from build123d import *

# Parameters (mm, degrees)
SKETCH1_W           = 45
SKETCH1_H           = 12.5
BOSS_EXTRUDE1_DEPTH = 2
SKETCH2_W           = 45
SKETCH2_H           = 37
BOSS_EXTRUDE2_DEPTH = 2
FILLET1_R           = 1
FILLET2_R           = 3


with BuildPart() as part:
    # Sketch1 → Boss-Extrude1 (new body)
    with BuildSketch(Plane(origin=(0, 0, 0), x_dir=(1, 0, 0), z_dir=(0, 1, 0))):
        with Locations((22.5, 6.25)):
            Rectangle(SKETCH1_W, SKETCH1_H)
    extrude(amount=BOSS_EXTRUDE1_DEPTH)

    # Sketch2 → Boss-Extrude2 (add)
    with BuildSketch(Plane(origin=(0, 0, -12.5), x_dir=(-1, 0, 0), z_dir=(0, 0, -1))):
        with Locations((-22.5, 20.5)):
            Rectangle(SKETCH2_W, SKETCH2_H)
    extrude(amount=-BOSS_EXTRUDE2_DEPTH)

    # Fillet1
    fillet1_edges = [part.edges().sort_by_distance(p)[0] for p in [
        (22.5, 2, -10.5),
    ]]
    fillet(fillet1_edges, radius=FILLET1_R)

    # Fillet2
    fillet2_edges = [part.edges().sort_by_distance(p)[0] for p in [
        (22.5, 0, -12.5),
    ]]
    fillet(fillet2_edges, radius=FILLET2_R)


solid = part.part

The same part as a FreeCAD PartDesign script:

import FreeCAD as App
import Part
import Sketcher


def edges_at(feature, points):
    """Names of the edges that pass closest to the given points."""
    edges = feature.Shape.Edges
    near = lambda p: min(range(len(edges)), key=lambda i: edges[i].distToShape(Part.Vertex(*p))[0])
    return sorted({f"Edge{near(p) + 1}" for p in points})

doc = App.newDocument("Part")
params = doc.addObject("Spreadsheet::Sheet", "Params")
for row, (alias, value) in enumerate([
    ("sketch1_width", "45 mm"),
    ("sketch1_height", "12.5 mm"),
    ("pad1_length", "2 mm"),
    ("sketch2_width", "45 mm"),
    ("sketch2_height", "37 mm"),
    ("pad2_length", "2 mm"),
    ("fillet_radius", "1 mm"),
    ("fillet2_radius", "3 mm"),
], start=1):
    params.set(f"A{row}", alias)
    params.set(f"B{row}", "=" + value)
    params.setAlias(f"B{row}", alias)

body = doc.addObject("PartDesign::Body", "Body")

# Sketch on XZ plane
sketch1 = body.newObject("Sketcher::SketchObject", "Sketch")
sketch1.AttachmentSupport = (doc.getObject("XZ_Plane"), [""])
sketch1.MapMode = "FlatFace"
sketch1.addGeometry([
    Part.LineSegment(App.Vector(0, -12, 0), App.Vector(0, 0, 0)),
    Part.LineSegment(App.Vector(0, 0, 0), App.Vector(45, 0, 0)),
    Part.LineSegment(App.Vector(45, 0, 0), App.Vector(45, -12, 0)),
    Part.LineSegment(App.Vector(45, -12, 0), App.Vector(0, -12, 0)),
], False)
sketch1.addConstraint([
    Sketcher.Constraint("Coincident", 0, 2, 1, 1),
    Sketcher.Constraint("Coincident", 1, 2, 2, 1),
    Sketcher.Constraint("Coincident", 2, 2, 3, 1),
    Sketcher.Constraint("Coincident", 3, 2, 0, 1),
    Sketcher.Constraint("Vertical", 0),
    Sketcher.Constraint("Horizontal", 1),
    Sketcher.Constraint("Vertical", 2),
    Sketcher.Constraint("Horizontal", 3),
    Sketcher.Constraint("Coincident", 0, 2, -1, 1),
    Sketcher.Constraint("DistanceX", 1, 1, 1, 2, 45.0),
    Sketcher.Constraint("DistanceY", 0, 1, 0, 2, 12.5),
])
sketch1.setExpression("Constraints[9]", "Params.sketch1_width")
sketch1.setExpression("Constraints[10]", "Params.sketch1_height")
pad1 = body.newObject("PartDesign::Pad", "Pad")
pad1.Profile = sketch1
pad1.setExpression("Length", "Params.pad1_length")
pad1.Reversed = True

# Sketch on XY plane
sketch2 = body.newObject("Sketcher::SketchObject", "Sketch001")
sketch2.AttachmentSupport = (doc.getObject("XY_Plane"), [""])
sketch2.MapMode = "FlatFace"
sketch2.AttachmentOffset = App.Placement(App.Vector(0, 0, -12.5), App.Rotation())
sketch2.addGeometry([
    Part.LineSegment(App.Vector(45, 39, 0), App.Vector(45, 2, 0)),
    Part.LineSegment(App.Vector(45, 2, 0), App.Vector(0, 2, 0)),
    Part.LineSegment(App.Vector(0, 2, 0), App.Vector(0, 39, 0)),
    Part.LineSegment(App.Vector(0, 39, 0), App.Vector(45, 39, 0)),
], False)
sketch2.addConstraint([
    Sketcher.Constraint("Coincident", 0, 2, 1, 1),
    Sketcher.Constraint("Coincident", 1, 2, 2, 1),
    Sketcher.Constraint("Coincident", 2, 2, 3, 1),
    Sketcher.Constraint("Coincident", 3, 2, 0, 1),
    Sketcher.Constraint("Vertical", 0),
    Sketcher.Constraint("Horizontal", 1),
    Sketcher.Constraint("Vertical", 2),
    Sketcher.Constraint("Horizontal", 3),
    Sketcher.Constraint("PointOnObject", 1, 2, -2),
    Sketcher.Constraint("DistanceX", 1, 2, 1, 1, 45.0),
    Sketcher.Constraint("DistanceY", 0, 2, 0, 1, 37.0),
    Sketcher.Constraint("DistanceY", -1, 1, 0, 2, 2.0),
])
sketch2.setExpression("Constraints[9]", "Params.sketch2_width")
sketch2.setExpression("Constraints[10]", "Params.sketch2_height")
pad2 = body.newObject("PartDesign::Pad", "Pad001")
pad2.Profile = sketch2
pad2.setExpression("Length", "Params.pad2_length")
doc.recompute()

fillet = body.newObject("PartDesign::Fillet", "Fillet")
fillet.Base = (pad2, edges_at(pad2, [(22.5, 2, -10.5)]))
fillet.setExpression("Radius", "Params.fillet_radius")
doc.recompute()

fillet2 = body.newObject("PartDesign::Fillet", "Fillet001")
fillet2.Base = (fillet, edges_at(fillet, [(22.5, 0, -12.5)]))
fillet2.setExpression("Radius", "Params.fillet2_radius")

doc.recompute()
